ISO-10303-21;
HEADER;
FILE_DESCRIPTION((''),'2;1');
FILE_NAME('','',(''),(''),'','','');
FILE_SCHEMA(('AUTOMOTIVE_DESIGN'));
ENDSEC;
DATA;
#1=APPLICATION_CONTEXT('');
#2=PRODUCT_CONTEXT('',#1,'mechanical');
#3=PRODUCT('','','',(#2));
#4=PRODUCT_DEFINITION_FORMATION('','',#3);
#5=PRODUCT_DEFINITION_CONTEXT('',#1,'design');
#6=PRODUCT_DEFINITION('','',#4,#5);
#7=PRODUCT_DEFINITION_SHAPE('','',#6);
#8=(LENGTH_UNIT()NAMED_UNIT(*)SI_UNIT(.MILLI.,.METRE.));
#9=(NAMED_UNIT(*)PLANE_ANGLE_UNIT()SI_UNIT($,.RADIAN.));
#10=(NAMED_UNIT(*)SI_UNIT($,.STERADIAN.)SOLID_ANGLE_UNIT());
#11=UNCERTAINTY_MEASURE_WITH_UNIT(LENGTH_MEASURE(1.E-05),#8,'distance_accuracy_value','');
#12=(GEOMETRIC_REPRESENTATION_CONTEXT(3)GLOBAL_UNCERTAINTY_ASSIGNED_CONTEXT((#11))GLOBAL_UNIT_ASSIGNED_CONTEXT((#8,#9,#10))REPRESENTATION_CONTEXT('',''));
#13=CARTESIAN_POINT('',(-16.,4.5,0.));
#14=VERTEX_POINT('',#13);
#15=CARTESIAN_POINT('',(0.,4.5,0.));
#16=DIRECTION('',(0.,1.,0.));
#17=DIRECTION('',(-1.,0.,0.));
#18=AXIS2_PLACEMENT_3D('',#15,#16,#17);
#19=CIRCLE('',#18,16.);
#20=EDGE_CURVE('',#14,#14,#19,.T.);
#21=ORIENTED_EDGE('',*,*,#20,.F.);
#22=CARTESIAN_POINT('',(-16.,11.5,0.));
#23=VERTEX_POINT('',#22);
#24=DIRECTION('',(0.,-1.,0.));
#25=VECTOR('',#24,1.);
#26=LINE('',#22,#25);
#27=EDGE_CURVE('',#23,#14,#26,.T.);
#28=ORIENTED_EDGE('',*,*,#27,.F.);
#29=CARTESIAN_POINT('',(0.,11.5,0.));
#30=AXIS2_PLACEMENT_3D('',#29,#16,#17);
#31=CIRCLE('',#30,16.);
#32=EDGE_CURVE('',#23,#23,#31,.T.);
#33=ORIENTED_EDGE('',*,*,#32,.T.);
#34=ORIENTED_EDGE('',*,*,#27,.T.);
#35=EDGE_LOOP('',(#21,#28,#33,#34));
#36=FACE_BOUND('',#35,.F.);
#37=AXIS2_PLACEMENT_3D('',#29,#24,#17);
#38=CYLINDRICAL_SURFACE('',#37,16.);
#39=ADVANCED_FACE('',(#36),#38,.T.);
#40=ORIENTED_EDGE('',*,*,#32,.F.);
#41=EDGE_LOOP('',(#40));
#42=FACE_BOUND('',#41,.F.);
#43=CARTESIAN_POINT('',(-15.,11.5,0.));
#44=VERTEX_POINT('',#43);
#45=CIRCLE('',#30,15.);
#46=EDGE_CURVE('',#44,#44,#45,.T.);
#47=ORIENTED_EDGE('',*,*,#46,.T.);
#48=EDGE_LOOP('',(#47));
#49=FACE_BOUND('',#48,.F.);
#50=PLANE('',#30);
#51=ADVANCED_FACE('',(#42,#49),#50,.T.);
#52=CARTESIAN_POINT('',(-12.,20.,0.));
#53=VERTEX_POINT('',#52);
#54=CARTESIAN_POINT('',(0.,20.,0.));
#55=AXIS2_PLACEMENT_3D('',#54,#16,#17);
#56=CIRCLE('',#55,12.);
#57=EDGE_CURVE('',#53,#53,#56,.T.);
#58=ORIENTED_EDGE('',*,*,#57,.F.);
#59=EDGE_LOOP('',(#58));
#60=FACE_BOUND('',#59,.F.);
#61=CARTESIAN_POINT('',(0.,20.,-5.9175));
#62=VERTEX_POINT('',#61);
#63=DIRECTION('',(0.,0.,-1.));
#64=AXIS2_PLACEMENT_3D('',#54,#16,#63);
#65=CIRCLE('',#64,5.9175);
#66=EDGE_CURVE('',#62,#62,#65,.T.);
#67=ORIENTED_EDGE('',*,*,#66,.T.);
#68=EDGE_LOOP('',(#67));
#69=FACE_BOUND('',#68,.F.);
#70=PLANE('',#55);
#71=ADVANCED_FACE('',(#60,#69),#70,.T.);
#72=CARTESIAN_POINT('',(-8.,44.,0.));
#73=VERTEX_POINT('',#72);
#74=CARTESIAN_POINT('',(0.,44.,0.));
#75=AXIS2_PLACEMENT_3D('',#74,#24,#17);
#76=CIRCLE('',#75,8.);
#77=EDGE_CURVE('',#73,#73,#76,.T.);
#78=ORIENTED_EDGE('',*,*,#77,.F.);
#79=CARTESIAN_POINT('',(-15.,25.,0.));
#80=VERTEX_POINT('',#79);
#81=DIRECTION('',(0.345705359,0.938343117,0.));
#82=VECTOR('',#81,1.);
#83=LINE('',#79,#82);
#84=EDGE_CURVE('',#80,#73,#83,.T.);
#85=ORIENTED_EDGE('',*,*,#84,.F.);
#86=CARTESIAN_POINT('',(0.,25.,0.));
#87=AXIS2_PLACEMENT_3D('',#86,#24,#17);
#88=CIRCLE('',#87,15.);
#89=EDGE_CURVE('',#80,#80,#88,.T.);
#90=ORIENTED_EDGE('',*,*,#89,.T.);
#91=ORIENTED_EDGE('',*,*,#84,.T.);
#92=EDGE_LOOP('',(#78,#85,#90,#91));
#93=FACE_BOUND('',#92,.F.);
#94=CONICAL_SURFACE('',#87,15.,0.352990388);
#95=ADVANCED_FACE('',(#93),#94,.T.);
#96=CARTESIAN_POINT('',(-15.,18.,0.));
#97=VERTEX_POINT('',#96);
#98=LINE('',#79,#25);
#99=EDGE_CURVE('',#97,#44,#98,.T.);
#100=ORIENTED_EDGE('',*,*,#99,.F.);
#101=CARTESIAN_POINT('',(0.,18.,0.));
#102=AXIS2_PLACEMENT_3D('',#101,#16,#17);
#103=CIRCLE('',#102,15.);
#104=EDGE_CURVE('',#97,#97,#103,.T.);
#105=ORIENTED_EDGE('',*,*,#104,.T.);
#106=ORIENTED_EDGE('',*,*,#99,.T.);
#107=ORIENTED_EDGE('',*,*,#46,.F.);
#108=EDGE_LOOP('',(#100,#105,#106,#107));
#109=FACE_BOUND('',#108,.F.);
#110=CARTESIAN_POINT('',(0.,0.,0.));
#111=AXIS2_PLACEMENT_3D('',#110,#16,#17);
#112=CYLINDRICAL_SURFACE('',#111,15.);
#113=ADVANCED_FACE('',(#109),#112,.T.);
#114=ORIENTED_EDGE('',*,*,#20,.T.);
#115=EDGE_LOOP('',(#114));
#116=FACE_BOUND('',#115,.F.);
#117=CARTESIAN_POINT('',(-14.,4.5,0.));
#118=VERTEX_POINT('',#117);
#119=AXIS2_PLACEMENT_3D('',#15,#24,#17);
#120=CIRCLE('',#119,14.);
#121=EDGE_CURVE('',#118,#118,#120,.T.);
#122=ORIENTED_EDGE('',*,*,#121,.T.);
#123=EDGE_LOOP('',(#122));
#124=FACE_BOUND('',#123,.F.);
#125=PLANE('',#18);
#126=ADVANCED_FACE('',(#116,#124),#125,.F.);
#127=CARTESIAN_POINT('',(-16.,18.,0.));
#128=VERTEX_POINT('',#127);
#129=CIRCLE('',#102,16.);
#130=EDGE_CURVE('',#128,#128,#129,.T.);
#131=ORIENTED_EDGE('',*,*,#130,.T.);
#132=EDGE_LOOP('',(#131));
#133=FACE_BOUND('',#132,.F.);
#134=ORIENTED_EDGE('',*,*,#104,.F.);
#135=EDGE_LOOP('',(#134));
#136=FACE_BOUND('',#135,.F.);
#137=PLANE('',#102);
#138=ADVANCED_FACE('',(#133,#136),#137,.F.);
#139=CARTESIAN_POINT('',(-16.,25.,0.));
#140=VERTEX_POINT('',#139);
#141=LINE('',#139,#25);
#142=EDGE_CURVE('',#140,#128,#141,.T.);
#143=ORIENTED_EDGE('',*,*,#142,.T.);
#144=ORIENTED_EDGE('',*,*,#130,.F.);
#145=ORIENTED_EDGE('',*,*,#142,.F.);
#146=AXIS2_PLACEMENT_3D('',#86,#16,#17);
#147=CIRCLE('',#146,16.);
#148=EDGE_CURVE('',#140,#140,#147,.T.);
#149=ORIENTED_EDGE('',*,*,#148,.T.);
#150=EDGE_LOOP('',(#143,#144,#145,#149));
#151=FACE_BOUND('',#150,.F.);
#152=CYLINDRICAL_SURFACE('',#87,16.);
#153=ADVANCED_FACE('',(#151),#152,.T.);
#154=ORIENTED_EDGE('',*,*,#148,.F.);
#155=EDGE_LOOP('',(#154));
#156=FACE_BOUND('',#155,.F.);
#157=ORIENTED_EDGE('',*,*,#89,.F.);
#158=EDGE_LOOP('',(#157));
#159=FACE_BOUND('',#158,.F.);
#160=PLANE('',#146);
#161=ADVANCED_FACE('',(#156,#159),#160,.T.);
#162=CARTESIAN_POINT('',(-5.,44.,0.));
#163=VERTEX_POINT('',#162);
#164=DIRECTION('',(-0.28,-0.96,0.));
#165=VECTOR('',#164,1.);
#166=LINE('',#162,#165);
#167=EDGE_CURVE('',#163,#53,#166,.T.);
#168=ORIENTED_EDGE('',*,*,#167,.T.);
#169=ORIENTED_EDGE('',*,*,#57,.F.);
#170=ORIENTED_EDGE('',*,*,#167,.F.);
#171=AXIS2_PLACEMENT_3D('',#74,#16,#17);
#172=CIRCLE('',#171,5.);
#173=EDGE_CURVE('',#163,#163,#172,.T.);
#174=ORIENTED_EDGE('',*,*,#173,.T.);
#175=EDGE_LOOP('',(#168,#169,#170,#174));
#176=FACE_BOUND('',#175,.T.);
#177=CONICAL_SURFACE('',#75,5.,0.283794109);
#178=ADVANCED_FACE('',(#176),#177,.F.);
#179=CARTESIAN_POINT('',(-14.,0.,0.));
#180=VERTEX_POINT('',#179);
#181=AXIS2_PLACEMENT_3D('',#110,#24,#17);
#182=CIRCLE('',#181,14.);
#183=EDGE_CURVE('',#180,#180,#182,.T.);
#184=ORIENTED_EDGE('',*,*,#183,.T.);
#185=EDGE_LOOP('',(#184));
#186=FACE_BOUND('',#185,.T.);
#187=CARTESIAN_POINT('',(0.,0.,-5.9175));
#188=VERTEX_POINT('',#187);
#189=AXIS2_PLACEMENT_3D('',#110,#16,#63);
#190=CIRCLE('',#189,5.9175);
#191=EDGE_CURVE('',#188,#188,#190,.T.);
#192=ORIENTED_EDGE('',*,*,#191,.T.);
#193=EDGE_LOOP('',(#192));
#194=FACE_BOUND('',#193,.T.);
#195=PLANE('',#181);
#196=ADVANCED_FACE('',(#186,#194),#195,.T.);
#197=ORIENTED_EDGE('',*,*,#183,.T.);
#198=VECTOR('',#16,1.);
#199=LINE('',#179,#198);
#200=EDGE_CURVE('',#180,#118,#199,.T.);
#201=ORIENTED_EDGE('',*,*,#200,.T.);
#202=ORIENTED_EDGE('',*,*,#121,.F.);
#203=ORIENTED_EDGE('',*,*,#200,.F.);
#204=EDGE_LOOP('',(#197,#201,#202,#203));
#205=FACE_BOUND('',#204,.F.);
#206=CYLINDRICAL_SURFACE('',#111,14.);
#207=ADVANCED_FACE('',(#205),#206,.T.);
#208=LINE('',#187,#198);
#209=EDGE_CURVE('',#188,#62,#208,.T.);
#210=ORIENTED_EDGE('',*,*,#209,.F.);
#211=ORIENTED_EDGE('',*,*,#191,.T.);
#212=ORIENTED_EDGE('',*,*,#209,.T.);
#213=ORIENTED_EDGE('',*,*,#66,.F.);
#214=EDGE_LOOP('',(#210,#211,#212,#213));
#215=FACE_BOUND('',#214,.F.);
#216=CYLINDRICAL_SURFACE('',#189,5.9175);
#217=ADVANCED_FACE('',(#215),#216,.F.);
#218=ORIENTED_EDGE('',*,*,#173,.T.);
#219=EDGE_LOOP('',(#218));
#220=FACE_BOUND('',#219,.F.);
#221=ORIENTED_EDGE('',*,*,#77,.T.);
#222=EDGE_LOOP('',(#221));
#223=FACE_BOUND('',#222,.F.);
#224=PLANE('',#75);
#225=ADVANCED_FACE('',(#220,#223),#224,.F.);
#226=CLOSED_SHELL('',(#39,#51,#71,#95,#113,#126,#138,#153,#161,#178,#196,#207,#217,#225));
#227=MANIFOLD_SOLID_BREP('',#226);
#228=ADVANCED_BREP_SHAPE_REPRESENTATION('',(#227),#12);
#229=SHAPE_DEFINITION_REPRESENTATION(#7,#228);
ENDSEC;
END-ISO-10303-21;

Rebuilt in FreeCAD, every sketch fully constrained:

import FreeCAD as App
import Part
import Sketcher


def add_polygon(sketch, points):
    """Adds a closed chain of lines whose ends are joined by coincident constraints."""
    first, n = sketch.GeometryCount, len(points)
    for a, b in zip(points, points[1:] + points[:1]):
        sketch.addGeometry(Part.LineSegment(App.Vector(*a, 0), App.Vector(*b, 0)), False)
    for i in range(n):
        sketch.addConstraint(Sketcher.Constraint("Coincident", first + i, 2, first + (i + 1) % n, 1))

doc = App.newDocument("Part")
params = doc.addObject("Spreadsheet::Sheet", "Params")
for row, (alias, value) in enumerate([
    ("sketch1_width", "15 mm"),
    ("sketch1_width2", "8 mm"),
    ("sketch1_height", "44 mm"),
    ("sketch1_height2", "25 mm"),
    ("revolution_angle", "360 deg"),
    ("sketch2_width", "1 mm"),
    ("sketch2_height", "4.5 mm"),
    ("groove_angle", "360 deg"),
    ("sketch3_width", "12 mm"),
    ("sketch3_height", "24 mm"),
    ("sketch3_width2", "5 mm"),
    ("groove2_angle", "360 deg"),
    ("hole_diameter", "11.835 mm"),
    ("hole_depth", "20 mm"),
    ("sketch5_width", "1 mm"),
    ("sketch5_height", "7 mm"),
    ("revolution2_angle", "360 deg"),
], start=1):
    params.set(f"A{row}", alias)
    params.set(f"B{row}", "=" + value)
    params.setAlias(f"B{row}", alias)

body = doc.addObject("PartDesign::Body", "Body")

# Sketch on XY plane
sketch1 = doc.addObject("Sketcher::SketchObject", "Sketch")
body.addObject(sketch1)
sketch1.AttachmentSupport = (doc.XY_Plane, [""])
sketch1.MapMode = "FlatFace"
add_polygon(sketch1, [(-15, 0), (0, 0), (0, 44), (-8, 44), (-15, 25)])  # lines 0-4
sketch1.addConstraint(Sketcher.Constraint("Horizontal", 0))
sketch1.addConstraint(Sketcher.Constraint("Vertical", 1))
sketch1.addConstraint(Sketcher.Constraint("Horizontal", 2))
sketch1.addConstraint(Sketcher.Constraint("Vertical", 4))
sketch1.addConstraint(Sketcher.Constraint("Coincident", 0, 2, -1, 1))
sketch1.addConstraint(Sketcher.Constraint("DistanceX", 0, 1, 0, 2, 15.0))
sketch1.addConstraint(Sketcher.Constraint("DistanceX", 2, 2, 2, 1, 8.0))
sketch1.addConstraint(Sketcher.Constraint("DistanceY", 1, 1, 1, 2, 44.0))
sketch1.addConstraint(Sketcher.Constraint("DistanceY", 4, 2, 4, 1, 25.0))
sketch1.setExpression("Constraints[10]", "Params.sketch1_width")
sketch1.setExpression("Constraints[11]", "Params.sketch1_width2")
sketch1.setExpression("Constraints[12]", "Params.sketch1_height")
sketch1.setExpression("Constraints[13]", "Params.sketch1_height2")
revolution = doc.addObject("PartDesign::Revolution", "Revolution")
body.addObject(revolution)
revolution.Profile = sketch1
revolution.ReferenceAxis = (sketch1, ["V_Axis"])
revolution.setExpression("Angle", "Params.revolution_angle")

# Sketch on XY plane
sketch2 = doc.addObject("Sketcher::SketchObject", "Sketch001")
body.addObject(sketch2)
sketch2.AttachmentSupport = (doc.XY_Plane, [""])
sketch2.MapMode = "FlatFace"
add_polygon(sketch2, [(-15, 4.5), (-15, 0), (-14, 0), (-14, 4.5)])  # lines 0-3
sketch2.addConstraint(Sketcher.Constraint("Vertical", 0))
sketch2.addConstraint(Sketcher.Constraint("Horizontal", 1))
sketch2.addConstraint(Sketcher.Constraint("Vertical", 2))
sketch2.addConstraint(Sketcher.Constraint("Horizontal", 3))
sketch2.addConstraint(Sketcher.Constraint("PointOnObject", 0, 2, -1))
sketch2.addConstraint(Sketcher.Constraint("DistanceX", 1, 1, 1, 2, 1.0))
sketch2.addConstraint(Sketcher.Constraint("DistanceY", 0, 2, 0, 1, 4.5))
sketch2.addConstraint(Sketcher.Constraint("DistanceX", 0, 2, -1, 1, 15.0))
sketch2.setExpression("Constraints[9]", "Params.sketch2_width")
sketch2.setExpression("Constraints[10]", "Params.sketch2_height")
groove = doc.addObject("PartDesign::Groove", "Groove")
body.addObject(groove)
groove.Profile = sketch2
groove.ReferenceAxis = (sketch2, ["V_Axis"])
groove.setExpression("Angle", "Params.groove_angle")

# Sketch on XY plane
sketch3 = doc.addObject("Sketcher::SketchObject", "Sketch002")
body.addObject(sketch3)
sketch3.AttachmentSupport = (doc.XY_Plane, [""])
sketch3.MapMode = "FlatFace"
add_polygon(sketch3, [(0, 44), (-5, 44), (-12, 20), (0, 20)])  # lines 0-3
sketch3.addConstraint(Sketcher.Constraint("Horizontal", 0))
sketch3.addConstraint(Sketcher.Constraint("Horizontal", 2))
sketch3.addConstraint(Sketcher.Constraint("Vertical", 3))
sketch3.addConstraint(Sketcher.Constraint("PointOnObject", 2, 2, -2))
sketch3.addConstraint(Sketcher.Constraint("DistanceX", 2, 1, 2, 2, 12.0))
sketch3.addConstraint(Sketcher.Constraint("DistanceY", 3, 1, 3, 2, 24.0))
sketch3.addConstraint(Sketcher.Constraint("DistanceX", 0, 2, 0, 1, 5.0))
sketch3.addConstraint(Sketcher.Constraint("DistanceY", -1, 1, 0, 2, 44.0))
sketch3.setExpression("Constraints[8]", "Params.sketch3_width")
sketch3.setExpression("Constraints[9]", "Params.sketch3_height")
sketch3.setExpression("Constraints[10]", "Params.sketch3_width2")
groove2 = doc.addObject("PartDesign::Groove", "Groove001")
body.addObject(groove2)
groove2.Profile = sketch3
groove2.ReferenceAxis = (sketch3, ["V_Axis"])
groove2.setExpression("Angle", "Params.groove2_angle")

# Sketch on XZ plane
sketch4 = doc.addObject("Sketcher::SketchObject", "Sketch003")
body.addObject(sketch4)
sketch4.AttachmentSupport = (doc.XZ_Plane, [""])
sketch4.MapMode = "FlatFace"
sketch4.addGeometry(Part.Circle(App.Vector(0, 0, 0), App.Vector(0, 0, 1), 6), False)
sketch4.addConstraint(Sketcher.Constraint("Coincident", 0, 3, -1, 1))
sketch4.addConstraint(Sketcher.Constraint("Diameter", 0, 11.835))
doc.recompute()
hole = doc.addObject("PartDesign::Hole", "Hole")
body.addObject(hole)
hole.Profile = sketch4
hole.ThreadType = "None"
hole.setExpression("Diameter", "Params.hole_diameter")
hole.DepthType = "Dimension"
hole.setExpression("Depth", "Params.hole_depth")
hole.DrillPoint = "Flat"

# Sketch on XY plane
sketch5 = doc.addObject("Sketcher::SketchObject", "Sketch004")
body.addObject(sketch5)
sketch5.AttachmentSupport = (doc.XY_Plane, [""])
sketch5.MapMode = "FlatFace"
add_polygon(sketch5, [(-16, 4.5), (-15, 4.5), (-15, 11.5), (-16, 11.5)])  # lines 0-3
add_polygon(sketch5, [(-16, 18), (-15, 18), (-15, 25), (-16, 25)])  # lines 4-7
sketch5.addConstraint(Sketcher.Constraint("Horizontal", 0))
sketch5.addConstraint(Sketcher.Constraint("Vertical", 1))
sketch5.addConstraint(Sketcher.Constraint("Horizontal", 2))
sketch5.addConstraint(Sketcher.Constraint("Vertical", 3))
sketch5.addConstraint(Sketcher.Constraint("Horizontal", 4))
sketch5.addConstraint(Sketcher.Constraint("Vertical", 5))
sketch5.addConstraint(Sketcher.Constraint("Horizontal", 6))
sketch5.addConstraint(Sketcher.Constraint("Vertical", 7))
sketch5.addConstraint(Sketcher.Constraint("Vertical", 1, 2, 4, 2))
sketch5.addConstraint(Sketcher.Constraint("Vertical", 3, 2, 6, 2))
sketch5.addConstraint(Sketcher.Constraint("Equal", 3, 5))
sketch5.addConstraint(Sketcher.Constraint("DistanceX", 0, 1, 0, 2, 1.0))
sketch5.addConstraint(Sketcher.Constraint("DistanceY", 1, 1, 1, 2, 7.0))
sketch5.addConstraint(Sketcher.Constraint("DistanceX", 0, 2, -1, 1, 15.0))
sketch5.addConstraint(Sketcher.Constraint("DistanceY", -1, 1, 4, 2, 18.0))
sketch5.addConstraint(Sketcher.Constraint("DistanceY", -1, 1, 0, 2, 4.5))
sketch5.setExpression("Constraints[19]", "Params.sketch5_width")
sketch5.setExpression("Constraints[20]", "Params.sketch5_height")
revolution2 = doc.addObject("PartDesign::Revolution", "Revolution001")
body.addObject(revolution2)
revolution2.Profile = sketch5
revolution2.ReferenceAxis = (sketch5, ["V_Axis"])
revolution2.setExpression("Angle", "Params.revolution2_angle")

doc.recompute()
